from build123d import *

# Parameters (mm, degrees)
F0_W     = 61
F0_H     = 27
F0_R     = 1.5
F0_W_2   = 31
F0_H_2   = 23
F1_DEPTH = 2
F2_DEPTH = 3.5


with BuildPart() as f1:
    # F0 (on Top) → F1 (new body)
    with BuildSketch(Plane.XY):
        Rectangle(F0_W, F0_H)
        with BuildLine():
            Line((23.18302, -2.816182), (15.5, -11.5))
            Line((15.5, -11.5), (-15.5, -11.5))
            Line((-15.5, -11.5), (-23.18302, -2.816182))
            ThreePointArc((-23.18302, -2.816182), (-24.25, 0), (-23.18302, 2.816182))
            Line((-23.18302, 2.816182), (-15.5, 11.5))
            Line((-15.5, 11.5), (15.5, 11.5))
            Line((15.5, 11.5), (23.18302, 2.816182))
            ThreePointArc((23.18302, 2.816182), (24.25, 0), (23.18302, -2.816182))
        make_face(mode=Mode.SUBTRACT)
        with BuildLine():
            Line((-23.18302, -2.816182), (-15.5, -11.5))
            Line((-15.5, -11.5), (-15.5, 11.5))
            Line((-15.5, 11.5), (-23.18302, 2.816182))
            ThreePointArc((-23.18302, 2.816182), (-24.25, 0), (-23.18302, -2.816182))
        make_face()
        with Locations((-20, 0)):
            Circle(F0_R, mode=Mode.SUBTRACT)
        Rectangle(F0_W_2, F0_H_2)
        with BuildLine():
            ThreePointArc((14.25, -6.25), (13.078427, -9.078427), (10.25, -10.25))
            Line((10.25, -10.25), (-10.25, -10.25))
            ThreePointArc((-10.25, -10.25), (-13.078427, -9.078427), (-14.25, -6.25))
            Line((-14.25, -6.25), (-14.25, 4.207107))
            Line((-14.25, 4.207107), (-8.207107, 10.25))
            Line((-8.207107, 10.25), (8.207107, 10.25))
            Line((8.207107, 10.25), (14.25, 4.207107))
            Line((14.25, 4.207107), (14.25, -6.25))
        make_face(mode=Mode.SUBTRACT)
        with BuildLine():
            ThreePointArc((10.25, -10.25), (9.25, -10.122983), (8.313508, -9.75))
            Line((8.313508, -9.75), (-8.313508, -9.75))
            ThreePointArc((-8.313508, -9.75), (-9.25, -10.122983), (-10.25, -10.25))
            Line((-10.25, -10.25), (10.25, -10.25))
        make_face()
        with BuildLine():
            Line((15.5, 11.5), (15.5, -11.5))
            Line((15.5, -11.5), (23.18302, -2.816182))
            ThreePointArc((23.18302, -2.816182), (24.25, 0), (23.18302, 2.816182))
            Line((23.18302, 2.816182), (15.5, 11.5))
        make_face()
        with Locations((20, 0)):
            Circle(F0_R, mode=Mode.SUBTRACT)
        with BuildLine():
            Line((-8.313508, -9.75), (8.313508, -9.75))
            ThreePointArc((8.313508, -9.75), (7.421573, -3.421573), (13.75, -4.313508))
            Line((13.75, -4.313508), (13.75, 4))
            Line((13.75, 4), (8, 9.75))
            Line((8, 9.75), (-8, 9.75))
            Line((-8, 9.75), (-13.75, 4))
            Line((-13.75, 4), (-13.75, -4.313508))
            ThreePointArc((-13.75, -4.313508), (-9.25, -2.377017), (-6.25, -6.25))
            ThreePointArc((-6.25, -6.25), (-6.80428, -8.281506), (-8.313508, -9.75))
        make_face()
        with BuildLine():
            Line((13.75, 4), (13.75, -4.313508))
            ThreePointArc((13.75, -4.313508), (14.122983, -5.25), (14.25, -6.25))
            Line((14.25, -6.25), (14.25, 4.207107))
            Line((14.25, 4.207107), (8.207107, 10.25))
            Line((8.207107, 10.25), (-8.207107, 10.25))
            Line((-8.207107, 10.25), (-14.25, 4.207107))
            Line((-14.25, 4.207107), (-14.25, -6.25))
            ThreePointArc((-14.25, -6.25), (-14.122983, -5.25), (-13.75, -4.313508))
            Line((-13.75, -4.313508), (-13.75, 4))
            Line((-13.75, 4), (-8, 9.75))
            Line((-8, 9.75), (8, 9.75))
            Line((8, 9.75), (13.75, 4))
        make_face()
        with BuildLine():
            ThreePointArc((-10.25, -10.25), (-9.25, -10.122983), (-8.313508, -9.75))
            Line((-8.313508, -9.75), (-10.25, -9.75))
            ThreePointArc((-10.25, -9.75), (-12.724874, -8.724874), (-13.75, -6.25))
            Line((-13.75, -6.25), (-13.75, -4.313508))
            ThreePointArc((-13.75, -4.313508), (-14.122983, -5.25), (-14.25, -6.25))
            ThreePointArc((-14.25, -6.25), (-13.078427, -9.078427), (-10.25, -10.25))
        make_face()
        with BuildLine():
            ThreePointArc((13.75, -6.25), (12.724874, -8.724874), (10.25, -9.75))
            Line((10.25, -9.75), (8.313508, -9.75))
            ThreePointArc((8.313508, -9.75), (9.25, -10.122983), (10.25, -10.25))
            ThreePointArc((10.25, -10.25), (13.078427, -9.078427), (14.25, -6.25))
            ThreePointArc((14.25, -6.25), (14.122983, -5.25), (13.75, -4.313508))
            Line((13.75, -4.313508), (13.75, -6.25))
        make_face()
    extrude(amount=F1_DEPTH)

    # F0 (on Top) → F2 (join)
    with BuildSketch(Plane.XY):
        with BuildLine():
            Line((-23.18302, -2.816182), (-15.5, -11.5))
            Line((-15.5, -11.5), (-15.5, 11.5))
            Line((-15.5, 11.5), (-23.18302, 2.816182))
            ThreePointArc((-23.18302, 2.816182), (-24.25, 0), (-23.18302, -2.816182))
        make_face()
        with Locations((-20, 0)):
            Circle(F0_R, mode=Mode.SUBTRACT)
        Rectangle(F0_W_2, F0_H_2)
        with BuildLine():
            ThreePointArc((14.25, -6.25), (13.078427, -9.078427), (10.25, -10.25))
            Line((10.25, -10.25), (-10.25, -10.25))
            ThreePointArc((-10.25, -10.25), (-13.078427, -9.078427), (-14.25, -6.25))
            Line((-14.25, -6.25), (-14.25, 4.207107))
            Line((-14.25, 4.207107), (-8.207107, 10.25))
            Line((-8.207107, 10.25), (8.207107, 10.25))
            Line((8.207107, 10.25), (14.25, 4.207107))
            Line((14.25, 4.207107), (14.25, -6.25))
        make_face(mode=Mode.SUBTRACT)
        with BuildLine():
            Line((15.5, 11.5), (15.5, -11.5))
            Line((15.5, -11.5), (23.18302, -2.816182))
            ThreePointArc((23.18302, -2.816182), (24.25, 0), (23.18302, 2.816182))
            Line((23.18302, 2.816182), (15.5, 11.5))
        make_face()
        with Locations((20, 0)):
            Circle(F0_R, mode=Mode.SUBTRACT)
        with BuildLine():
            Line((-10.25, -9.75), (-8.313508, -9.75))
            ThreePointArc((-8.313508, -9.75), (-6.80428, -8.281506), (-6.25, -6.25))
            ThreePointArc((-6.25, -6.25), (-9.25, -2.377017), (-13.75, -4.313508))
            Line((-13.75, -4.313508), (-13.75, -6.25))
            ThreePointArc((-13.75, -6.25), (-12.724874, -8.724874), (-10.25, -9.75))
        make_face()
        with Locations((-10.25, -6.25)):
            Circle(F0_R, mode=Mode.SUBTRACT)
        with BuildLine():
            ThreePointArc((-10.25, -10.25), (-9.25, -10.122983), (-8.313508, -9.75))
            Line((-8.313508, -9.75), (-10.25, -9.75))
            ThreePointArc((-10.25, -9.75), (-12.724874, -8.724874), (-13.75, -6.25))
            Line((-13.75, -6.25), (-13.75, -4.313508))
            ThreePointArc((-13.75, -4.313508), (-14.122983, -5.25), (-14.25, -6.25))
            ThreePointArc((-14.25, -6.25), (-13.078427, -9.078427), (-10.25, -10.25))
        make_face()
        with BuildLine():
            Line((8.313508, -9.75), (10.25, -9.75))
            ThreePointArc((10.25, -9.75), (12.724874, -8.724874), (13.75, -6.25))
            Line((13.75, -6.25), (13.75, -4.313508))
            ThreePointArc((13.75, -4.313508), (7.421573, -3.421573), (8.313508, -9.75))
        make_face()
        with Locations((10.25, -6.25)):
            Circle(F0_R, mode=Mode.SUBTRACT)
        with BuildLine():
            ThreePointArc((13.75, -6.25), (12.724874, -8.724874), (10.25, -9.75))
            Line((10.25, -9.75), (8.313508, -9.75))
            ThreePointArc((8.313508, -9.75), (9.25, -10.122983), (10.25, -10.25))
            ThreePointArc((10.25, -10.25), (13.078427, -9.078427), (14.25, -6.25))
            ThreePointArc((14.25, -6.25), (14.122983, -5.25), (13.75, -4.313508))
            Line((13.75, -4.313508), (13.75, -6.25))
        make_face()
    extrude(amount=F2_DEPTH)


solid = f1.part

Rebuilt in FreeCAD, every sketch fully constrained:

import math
import FreeCAD as App
import Part
import Sketcher


def add_polygon(sketch, points):
    """Adds a closed chain of lines whose ends are joined by coincident constraints."""
    first, n = sketch.GeometryCount, len(points)
    for a, b in zip(points, points[1:] + points[:1]):
        sketch.addGeometry(Part.LineSegment(App.Vector(*a, 0), App.Vector(*b, 0)), False)
    for i in range(n):
        sketch.addConstraint(Sketcher.Constraint("Coincident", first + i, 2, first + (i + 1) % n, 1))

doc = App.newDocument("Part")
body = doc.addObject("PartDesign::Body", "Body")

# Sketch on XY plane
sketch1 = body.newObject("Sketcher::SketchObject", "Sketch")
sketch1.AttachmentSupport = (doc.getObject("XY_Plane"), [""])
sketch1.MapMode = "FlatFace"
add_polygon(sketch1, [(-30.5, 13.5), (-30.5, -13.5), (30.5, -13.5), (30.5, 13.5)])  # lines 0-3
sketch1.addGeometry(Part.Circle(App.Vector(-20, 0, 0), App.Vector(0, 0, 1), 1.5), False)  # 4
sketch1.addGeometry(Part.ArcOfCircle(Part.Circle(App.Vector(10.3, -6.3, 0), App.Vector(0, 0, 1), 4), math.radians(29), math.radians(241)), False)  # 5
sketch1.addGeometry(Part.LineSegment(App.Vector(13.8, -4.3, 0), App.Vector(13.8, -6.2, 0)), False)  # 6
sketch1.addGeometry(Part.ArcOfCircle(Part.Circle(App.Vector(10.3, -6.3, 0), App.Vector(0, 0, 1), 3.5), math.radians(-90), math.radians(0)), False)  # 7
sketch1.addGeometry(Part.LineSegment(App.Vector(10.2, -9.8, 0), App.Vector(8.3, -9.8, 0)), False)  # 8
sketch1.addGeometry(Part.ArcOfCircle(Part.Circle(App.Vector(-10.3, -6.3, 0), App.Vector(0, 0, 1), 4), math.radians(0), math.radians(151)), False)  # 9
sketch1.addGeometry(Part.ArcOfCircle(Part.Circle(App.Vector(-10.2, -6.3, 0), App.Vector(0, 0, 1), 4), math.radians(-61), math.radians(0)), False)  # 10
sketch1.addGeometry(Part.LineSegment(App.Vector(-8.3, -9.8, 0), App.Vector(-10.2, -9.8, 0)), False)  # 11
sketch1.addGeometry(Part.ArcOfCircle(Part.Circle(App.Vector(-10.3, -6.3, 0), App.Vector(0, 0, 1), 3.5), math.radians(180), math.radians(270)), False)  # 12
sketch1.addGeometry(Part.LineSegment(App.Vector(-13.8, -6.2, 0), App.Vector(-13.8, -4.3, 0)), False)  # 13
sketch1.addGeometry(Part.Circle(App.Vector(20, 0, 0), App.Vector(0, 0, 1), 1.5), False)  # 14
sketch1.addConstraint([
    Sketcher.Constraint("Coincident", 5, 1, 6, 1),
    Sketcher.Constraint("Tangent", 6, 2, 7, 2),
    Sketcher.Constraint("Tangent", 7, 1, 8, 1),
    Sketcher.Constraint("Coincident", 8, 2, 5, 2),
    Sketcher.Constraint("Tangent", 9, 1, 10, 2),
    Sketcher.Constraint("Coincident", 10, 1, 11, 1),
    Sketcher.Constraint("Tangent", 11, 2, 12, 2),
    Sketcher.Constraint("Tangent", 12, 1, 13, 1),
    Sketcher.Constraint("Coincident", 13, 2, 9, 2),
    Sketcher.Constraint("Vertical", 0),
    Sketcher.Constraint("Horizontal", 1),
    Sketcher.Constraint("Vertical", 2),
    Sketcher.Constraint("Horizontal", 3),
    Sketcher.Constraint("Vertical", 6),
    Sketcher.Constraint("Horizontal", 8),
    Sketcher.Constraint("Horizontal", 11),
    Sketcher.Constraint("Vertical", 13),
    Sketcher.Constraint("Coincident", 7, 3, 5, 3),
    Sketcher.Constraint("Coincident", 12, 3, 9, 3),
    Sketcher.Constraint("Equal", 5, 9),
    Sketcher.Constraint("Equal", 9, 10),
    Sketcher.Constraint("Equal", 7, 12),
    Sketcher.Constraint("Equal", 4, 14),
    Sketcher.Constraint("Symmetric", 4, 3, 14, 3, -1, 1),
    Sketcher.Constraint("Symmetric", 0, 2, 2, 2, -1, 1),
    Sketcher.Constraint("Symmetric", 5, 3, 9, 3, -2),
    Sketcher.Constraint("PointOnObject", 4, 3, -1),
    Sketcher.Constraint("Horizontal", 6, 2, 9, 1),
    Sketcher.Constraint("Diameter", 4, 3.0),
    Sketcher.Constraint("Radius", 5, 4.0),
    Sketcher.Constraint("Radius", 7, 3.499999),
    Sketcher.Constraint("DistanceX", 1, 1, 1, 2, 61.0),
    Sketcher.Constraint("DistanceY", 0, 2, 0, 1, 27.0),
    Sketcher.Constraint("DistanceX", 4, 3, -1, 1, 20.0),
    Sketcher.Constraint("DistanceX", 10, 3, 5, 1, 23.999998),
    Sketcher.Constraint("DistanceY", 5, 3, -1, 1, 6.25),
])
pad1 = body.newObject("PartDesign::Pad", "Pad")
pad1.Profile = sketch1
pad1.Length = 2

# Sketch on XY plane
sketch2 = body.newObject("Sketcher::SketchObject", "Sketch001")
sketch2.AttachmentSupport = (doc.getObject("XY_Plane"), [""])
sketch2.MapMode = "FlatFace"
sketch2.addGeometry([
    Part.LineSegment(App.Vector(-23.2, -2.8, 0), App.Vector(-15.5, -11.5, 0)),  # 0
    Part.LineSegment(App.Vector(-15.5, -11.5, 0), App.Vector(15.5, -11.5, 0)),  # 1
    Part.LineSegment(App.Vector(15.5, -11.5, 0), App.Vector(23.2, -2.8, 0)),  # 2
    Part.ArcOfCircle(Part.Circle(App.Vector(20, 0, 0), App.Vector(0, 0, 1), 4.2), math.radians(-42), math.radians(42)),  # 3
    Part.LineSegment(App.Vector(23.2, 2.8, 0), App.Vector(15.5, 11.5, 0)),  # 4
    Part.LineSegment(App.Vector(15.5, 11.5, 0), App.Vector(-15.5, 11.5, 0)),  # 5
    Part.LineSegment(App.Vector(-15.5, 11.5, 0), App.Vector(-23.2, 2.8, 0)),  # 6
    Part.ArcOfCircle(Part.Circle(App.Vector(-20, 0, 0), App.Vector(0, 0, 1), 4.2), math.radians(138), math.radians(222)),  # 7
    Part.Circle(App.Vector(-20, 0, 0), App.Vector(0, 0, 1), 1.5),  # 8
    Part.LineSegment(App.Vector(14.2, 4.2, 0), App.Vector(14.2, -6.2, 0)),  # 9
    Part.ArcOfCircle(Part.Circle(App.Vector(10.2, -6.3, 0), App.Vector(0, 0, 1), 4), math.radians(0), math.radians(29)),  # 10
    Part.ArcOfCircle(Part.Circle(App.Vector(10.3, -6.3, 0), App.Vector(0, 0, 1), 4), math.radians(29), math.radians(241)),  # 11
    Part.ArcOfCircle(Part.Circle(App.Vector(10.3, -6.2, 0), App.Vector(0, 0, 1), 4), math.radians(-119), math.radians(-90)),  # 12
    Part.LineSegment(App.Vector(10.2, -10.2, 0), App.Vector(-10.2, -10.2, 0)),  # 13
    Part.ArcOfCircle(Part.Circle(App.Vector(-10.3, -6.2, 0), App.Vector(0, 0, 1), 4), math.radians(-90), math.radians(-61)),  # 14
    Part.ArcOfCircle(Part.Circle(App.Vector(-10.2, -6.3, 0), App.Vector(0, 0, 1), 4), math.radians(-61), math.radians(0)),  # 15
    Part.ArcOfCircle(Part.Circle(App.Vector(-10.3, -6.3, 0), App.Vector(0, 0, 1), 4), math.radians(0), math.radians(151)),  # 16
    Part.ArcOfCircle(Part.Circle(App.Vector(-10.2, -6.3, 0), App.Vector(0, 0, 1), 4), math.radians(151), math.radians(180)),  # 17
    Part.LineSegment(App.Vector(-14.2, -6.2, 0), App.Vector(-14.2, 4.2, 0)),  # 18
    Part.LineSegment(App.Vector(-14.2, 4.2, 0), App.Vector(-8.2, 10.2, 0)),  # 19
    Part.LineSegment(App.Vector(-8.2, 10.2, 0), App.Vector(8.2, 10.2, 0)),  # 20
    Part.LineSegment(App.Vector(8.2, 10.2, 0), App.Vector(14.2, 4.2, 0)),  # 21
    Part.Circle(App.Vector(20, 0, 0), App.Vector(0, 0, 1), 1.5),  # 22
    Part.Circle(App.Vector(-10.2, -6.2, 0), App.Vector(0, 0, 1), 1.5),  # 23
    Part.Circle(App.Vector(10.2, -6.2, 0), App.Vector(0, 0, 1), 1.5),  # 24
], False)
sketch2.addConstraint([
    Sketcher.Constraint("Coincident", 0, 2, 1, 1),
    Sketcher.Constraint("Coincident", 1, 2, 2, 1),
    Sketcher.Constraint("Tangent", 2, 2, 3, 1),
    Sketcher.Constraint("Tangent", 3, 2, 4, 1),
    Sketcher.Constraint("Coincident", 4, 2, 5, 1),
    Sketcher.Constraint("Coincident", 5, 2, 6, 1),
    Sketcher.Constraint("Tangent", 6, 2, 7, 1),
    Sketcher.Constraint("Tangent", 7, 2, 0, 1),
    Sketcher.Constraint("Tangent", 9, 2, 10, 1),
    Sketcher.Constraint("Tangent", 10, 2, 11, 1),
    Sketcher.Constraint("Tangent", 11, 2, 12, 1),
    Sketcher.Constraint("Tangent", 12, 2, 13, 1),
    Sketcher.Constraint("Tangent", 13, 2, 14, 1),
    Sketcher.Constraint("Tangent", 14, 2, 15, 1),
    Sketcher.Constraint("Tangent", 15, 2, 16, 1),
    Sketcher.Constraint("Tangent", 16, 2, 17, 1),
    Sketcher.Constraint("Tangent", 17, 2, 18, 1),
    Sketcher.Constraint("Coincident", 18, 2, 19, 1),
    Sketcher.Constraint("Coincident", 19, 2, 20, 1),
    Sketcher.Constraint("Coincident", 20, 2, 21, 1),
    Sketcher.Constraint("Coincident", 21, 2, 9, 1),
    Sketcher.Constraint("Horizontal", 1),
    Sketcher.Constraint("Horizontal", 5),
    Sketcher.Constraint("Vertical", 9),
    Sketcher.Constraint("Horizontal", 13),
    Sketcher.Constraint("Vertical", 18),
    Sketcher.Constraint("Horizontal", 20),
    Sketcher.Constraint("Coincident", 8, 3, 7, 3),
    Sketcher.Constraint("Coincident", 22, 3, 3, 3),
    Sketcher.Constraint("Coincident", 23, 3, 15, 3),
    Sketcher.Constraint("Coincident", 24, 3, 11, 3),
    Sketcher.Constraint("Equal", 3, 7),
    Sketcher.Constraint("Equal", 10, 12),
    Sketcher.Constraint("Equal", 12, 14),
    Sketcher.Constraint("Equal", 11, 15),
    Sketcher.Constraint("Equal", 15, 16),
    Sketcher.Constraint("Equal", 14, 17),
    Sketcher.Constraint("Equal", 8, 22),
    Sketcher.Constraint("Equal", 22, 23),
    Sketcher.Constraint("Equal", 23, 24),
    Sketcher.Constraint("Symmetric", 3, 3, 7, 3, -1, 1),
    Sketcher.Constraint("Symmetric", 0, 2, 4, 2, -1, 1),
    Sketcher.Constraint("Symmetric", 3, 2, 6, 2, -2),
    Sketcher.Constraint("Symmetric", 11, 2, 14, 2, -2),
    Sketcher.Constraint("Parallel", 2, 6),
    Sketcher.Constraint("Perpendicular", 19, 21),
    Sketcher.Constraint("Horizontal", 15, 3, 17, 3),
    Sketcher.Constraint("Horizontal", 9, 2, 15, 2),
    Sketcher.Constraint("Horizontal", 10, 2, 16, 2),
    Sketcher.Constraint("Horizontal", 18, 2, 21, 2),
    Sketcher.Constraint("Equal", 19, 21),
    Sketcher.Constraint("Diameter", 8, 3.0),
    Sketcher.Constraint("Radius", 11, 4.0),
    Sketcher.Constraint("DistanceX", 1, 1, 1, 2, 31.0),
    Sketcher.Constraint("Radius", 3, 4.249999),
    Sketcher.Constraint("DistanceX", 13, 2, 13, 1, 20.5),
    Sketcher.Constraint("DistanceX", -1, 1, 3, 3, 20.000001),
    Sketcher.Constraint("DistanceY", 0, 2, -1, 1, 11.5),
    Sketcher.Constraint("DistanceX", 10, 2, 9, 2, 0.5),
    Sketcher.Constraint("DistanceY", 11, 2, 11, 3, 3.5),
    Sketcher.Constraint("DistanceY", 11, 3, -1, 1, 6.25),
    Sketcher.Constraint("DistanceY", -1, 1, 19, 2, 10.25),
    Sketcher.Constraint("Distance", 19, 8.545941),
])
pad2 = body.newObject("PartDesign::Pad", "Pad001")
pad2.Profile = sketch2
pad2.Length = 3.5

doc.recompute()
